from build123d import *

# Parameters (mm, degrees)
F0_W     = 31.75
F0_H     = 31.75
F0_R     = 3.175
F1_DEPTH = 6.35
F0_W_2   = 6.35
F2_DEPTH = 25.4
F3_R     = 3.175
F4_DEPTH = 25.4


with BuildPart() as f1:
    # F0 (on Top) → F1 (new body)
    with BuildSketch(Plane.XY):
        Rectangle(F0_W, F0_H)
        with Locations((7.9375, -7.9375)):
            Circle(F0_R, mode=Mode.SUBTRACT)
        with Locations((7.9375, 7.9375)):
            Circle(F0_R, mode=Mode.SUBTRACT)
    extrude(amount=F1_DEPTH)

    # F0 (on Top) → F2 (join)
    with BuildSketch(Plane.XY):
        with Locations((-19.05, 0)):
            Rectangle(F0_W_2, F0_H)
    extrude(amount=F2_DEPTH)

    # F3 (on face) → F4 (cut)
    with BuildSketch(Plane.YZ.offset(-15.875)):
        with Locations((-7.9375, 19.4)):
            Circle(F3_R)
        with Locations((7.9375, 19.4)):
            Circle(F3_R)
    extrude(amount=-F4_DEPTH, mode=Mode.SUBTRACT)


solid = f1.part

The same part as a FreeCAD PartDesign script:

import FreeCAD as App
import Part
import Sketcher
Q = App.Units.Quantity


def add_polygon(sketch, points):
    """Adds a closed chain of lines whose ends are joined by coincident constraints."""
    first, n = sketch.GeometryCount, len(points)
    for a, b in zip(points, points[1:] + points[:1]):
        sketch.addGeometry(Part.LineSegment(App.Vector(*a, 0), App.Vector(*b, 0)), False)
    for i in range(n):
        sketch.addConstraint(Sketcher.Constraint("Coincident", first + i, 2, first + (i + 1) % n, 1))

doc = App.newDocument("Part")
body = doc.addObject("PartDesign::Body", "Body")

# Sketch on XY plane
sketch1 = body.newObject("Sketcher::SketchObject", "Sketch")
sketch1.AttachmentSupport = (doc.getObject("XY_Plane"), [""])
sketch1.MapMode = "FlatFace"
add_polygon(sketch1, [(-15.875, 15.875), (-15.875, -15.875), (15.875, -15.875), (15.875, 15.875)])  # lines 0-3
sketch1.addGeometry(Part.Circle(App.Vector(7.9375, -7.9375, 0), App.Vector(0, 0, 1), 3.175), False)  # 4
sketch1.addGeometry(Part.Circle(App.Vector(7.9375, 7.9375, 0), App.Vector(0, 0, 1), 3.175), False)  # 5
sketch1.addConstraint([
    Sketcher.Constraint("Vertical", 0),
    Sketcher.Constraint("Horizontal", 1),
    Sketcher.Constraint("Vertical", 2),
    Sketcher.Constraint("Horizontal", 3),
    Sketcher.Constraint("Equal", 4, 5),
    Sketcher.Constraint("Symmetric", 0, 2, 2, 2, -1, 1),
    Sketcher.Constraint("Symmetric", 4, 3, 5, 3, -1),
    Sketcher.Constraint("Equal", 3, 0),
    Sketcher.Constraint("Diameter", 4, Q("0.25 in")),
    Sketcher.Constraint("DistanceX", 1, 1, 1, 2, Q("1.25 in")),
    Sketcher.Constraint("DistanceX", -1, 1, 4, 3, Q("0.3125 in")),
    Sketcher.Constraint("DistanceY", 4, 3, -1, 1, Q("0.3125 in")),
])
pad1 = body.newObject("PartDesign::Pad", "Pad")
pad1.Profile = sketch1
pad1.Length = Q("0.25 in")

# Sketch on XY plane
sketch2 = body.newObject("Sketcher::SketchObject", "Sketch001")
sketch2.AttachmentSupport = (doc.getObject("XY_Plane"), [""])
sketch2.MapMode = "FlatFace"
add_polygon(sketch2, [(-22.225, 15.875), (-22.225, -15.875), (-15.875, -15.875), (-15.875, 15.875)])  # lines 0-3
sketch2.addConstraint([
    Sketcher.Constraint("Vertical", 0),
    Sketcher.Constraint("Horizontal", 1),
    Sketcher.Constraint("Vertical", 2),
    Sketcher.Constraint("Horizontal", 3),
    Sketcher.Constraint("DistanceX", 1, 1, 1, 2, Q("0.25 in")),
    Sketcher.Constraint("DistanceY", 0, 2, 0, 1, Q("1.25 in")),
    Sketcher.Constraint("DistanceX", 0, 2, -1, 1, Q("0.875 in")),
    Sketcher.Constraint("DistanceY", 0, 2, -1, 1, Q("0.625 in")),
])
pad2 = body.newObject("PartDesign::Pad", "Pad001")
pad2.Profile = sketch2
pad2.Length = Q("1 in")

# Sketch on YZ plane
sketch3 = body.newObject("Sketcher::SketchObject", "Sketch002")
sketch3.AttachmentSupport = (doc.getObject("YZ_Plane"), [""])
sketch3.MapMode = "FlatFace"
sketch3.AttachmentOffset = App.Placement(App.Vector(0, 0, -0.625 * 25.4), App.Rotation())
sketch3.addGeometry([
    Part.Circle(App.Vector(-7.9375, 19.4, 0), App.Vector(0, 0, 1), 3.175),
    Part.Circle(App.Vector(7.9375, 19.4, 0), App.Vector(0, 0, 1), 3.175),
], False)
sketch3.addConstraint([
    Sketcher.Constraint("Equal", 0, 1),
    Sketcher.Constraint("Symmetric", 0, 3, 1, 3, -2),
    Sketcher.Constraint("Diameter", 0, Q("0.25 in")),
    Sketcher.Constraint("DistanceX", 0, 3, -1, 1, Q("0.3125 in")),
    Sketcher.Constraint("DistanceY", -1, 1, 0, 3, 19.4),
])
pocket1 = body.newObject("PartDesign::Pocket", "Pocket")
pocket1.Profile = sketch3
pocket1.Length = Q("1 in")

doc.recompute()
